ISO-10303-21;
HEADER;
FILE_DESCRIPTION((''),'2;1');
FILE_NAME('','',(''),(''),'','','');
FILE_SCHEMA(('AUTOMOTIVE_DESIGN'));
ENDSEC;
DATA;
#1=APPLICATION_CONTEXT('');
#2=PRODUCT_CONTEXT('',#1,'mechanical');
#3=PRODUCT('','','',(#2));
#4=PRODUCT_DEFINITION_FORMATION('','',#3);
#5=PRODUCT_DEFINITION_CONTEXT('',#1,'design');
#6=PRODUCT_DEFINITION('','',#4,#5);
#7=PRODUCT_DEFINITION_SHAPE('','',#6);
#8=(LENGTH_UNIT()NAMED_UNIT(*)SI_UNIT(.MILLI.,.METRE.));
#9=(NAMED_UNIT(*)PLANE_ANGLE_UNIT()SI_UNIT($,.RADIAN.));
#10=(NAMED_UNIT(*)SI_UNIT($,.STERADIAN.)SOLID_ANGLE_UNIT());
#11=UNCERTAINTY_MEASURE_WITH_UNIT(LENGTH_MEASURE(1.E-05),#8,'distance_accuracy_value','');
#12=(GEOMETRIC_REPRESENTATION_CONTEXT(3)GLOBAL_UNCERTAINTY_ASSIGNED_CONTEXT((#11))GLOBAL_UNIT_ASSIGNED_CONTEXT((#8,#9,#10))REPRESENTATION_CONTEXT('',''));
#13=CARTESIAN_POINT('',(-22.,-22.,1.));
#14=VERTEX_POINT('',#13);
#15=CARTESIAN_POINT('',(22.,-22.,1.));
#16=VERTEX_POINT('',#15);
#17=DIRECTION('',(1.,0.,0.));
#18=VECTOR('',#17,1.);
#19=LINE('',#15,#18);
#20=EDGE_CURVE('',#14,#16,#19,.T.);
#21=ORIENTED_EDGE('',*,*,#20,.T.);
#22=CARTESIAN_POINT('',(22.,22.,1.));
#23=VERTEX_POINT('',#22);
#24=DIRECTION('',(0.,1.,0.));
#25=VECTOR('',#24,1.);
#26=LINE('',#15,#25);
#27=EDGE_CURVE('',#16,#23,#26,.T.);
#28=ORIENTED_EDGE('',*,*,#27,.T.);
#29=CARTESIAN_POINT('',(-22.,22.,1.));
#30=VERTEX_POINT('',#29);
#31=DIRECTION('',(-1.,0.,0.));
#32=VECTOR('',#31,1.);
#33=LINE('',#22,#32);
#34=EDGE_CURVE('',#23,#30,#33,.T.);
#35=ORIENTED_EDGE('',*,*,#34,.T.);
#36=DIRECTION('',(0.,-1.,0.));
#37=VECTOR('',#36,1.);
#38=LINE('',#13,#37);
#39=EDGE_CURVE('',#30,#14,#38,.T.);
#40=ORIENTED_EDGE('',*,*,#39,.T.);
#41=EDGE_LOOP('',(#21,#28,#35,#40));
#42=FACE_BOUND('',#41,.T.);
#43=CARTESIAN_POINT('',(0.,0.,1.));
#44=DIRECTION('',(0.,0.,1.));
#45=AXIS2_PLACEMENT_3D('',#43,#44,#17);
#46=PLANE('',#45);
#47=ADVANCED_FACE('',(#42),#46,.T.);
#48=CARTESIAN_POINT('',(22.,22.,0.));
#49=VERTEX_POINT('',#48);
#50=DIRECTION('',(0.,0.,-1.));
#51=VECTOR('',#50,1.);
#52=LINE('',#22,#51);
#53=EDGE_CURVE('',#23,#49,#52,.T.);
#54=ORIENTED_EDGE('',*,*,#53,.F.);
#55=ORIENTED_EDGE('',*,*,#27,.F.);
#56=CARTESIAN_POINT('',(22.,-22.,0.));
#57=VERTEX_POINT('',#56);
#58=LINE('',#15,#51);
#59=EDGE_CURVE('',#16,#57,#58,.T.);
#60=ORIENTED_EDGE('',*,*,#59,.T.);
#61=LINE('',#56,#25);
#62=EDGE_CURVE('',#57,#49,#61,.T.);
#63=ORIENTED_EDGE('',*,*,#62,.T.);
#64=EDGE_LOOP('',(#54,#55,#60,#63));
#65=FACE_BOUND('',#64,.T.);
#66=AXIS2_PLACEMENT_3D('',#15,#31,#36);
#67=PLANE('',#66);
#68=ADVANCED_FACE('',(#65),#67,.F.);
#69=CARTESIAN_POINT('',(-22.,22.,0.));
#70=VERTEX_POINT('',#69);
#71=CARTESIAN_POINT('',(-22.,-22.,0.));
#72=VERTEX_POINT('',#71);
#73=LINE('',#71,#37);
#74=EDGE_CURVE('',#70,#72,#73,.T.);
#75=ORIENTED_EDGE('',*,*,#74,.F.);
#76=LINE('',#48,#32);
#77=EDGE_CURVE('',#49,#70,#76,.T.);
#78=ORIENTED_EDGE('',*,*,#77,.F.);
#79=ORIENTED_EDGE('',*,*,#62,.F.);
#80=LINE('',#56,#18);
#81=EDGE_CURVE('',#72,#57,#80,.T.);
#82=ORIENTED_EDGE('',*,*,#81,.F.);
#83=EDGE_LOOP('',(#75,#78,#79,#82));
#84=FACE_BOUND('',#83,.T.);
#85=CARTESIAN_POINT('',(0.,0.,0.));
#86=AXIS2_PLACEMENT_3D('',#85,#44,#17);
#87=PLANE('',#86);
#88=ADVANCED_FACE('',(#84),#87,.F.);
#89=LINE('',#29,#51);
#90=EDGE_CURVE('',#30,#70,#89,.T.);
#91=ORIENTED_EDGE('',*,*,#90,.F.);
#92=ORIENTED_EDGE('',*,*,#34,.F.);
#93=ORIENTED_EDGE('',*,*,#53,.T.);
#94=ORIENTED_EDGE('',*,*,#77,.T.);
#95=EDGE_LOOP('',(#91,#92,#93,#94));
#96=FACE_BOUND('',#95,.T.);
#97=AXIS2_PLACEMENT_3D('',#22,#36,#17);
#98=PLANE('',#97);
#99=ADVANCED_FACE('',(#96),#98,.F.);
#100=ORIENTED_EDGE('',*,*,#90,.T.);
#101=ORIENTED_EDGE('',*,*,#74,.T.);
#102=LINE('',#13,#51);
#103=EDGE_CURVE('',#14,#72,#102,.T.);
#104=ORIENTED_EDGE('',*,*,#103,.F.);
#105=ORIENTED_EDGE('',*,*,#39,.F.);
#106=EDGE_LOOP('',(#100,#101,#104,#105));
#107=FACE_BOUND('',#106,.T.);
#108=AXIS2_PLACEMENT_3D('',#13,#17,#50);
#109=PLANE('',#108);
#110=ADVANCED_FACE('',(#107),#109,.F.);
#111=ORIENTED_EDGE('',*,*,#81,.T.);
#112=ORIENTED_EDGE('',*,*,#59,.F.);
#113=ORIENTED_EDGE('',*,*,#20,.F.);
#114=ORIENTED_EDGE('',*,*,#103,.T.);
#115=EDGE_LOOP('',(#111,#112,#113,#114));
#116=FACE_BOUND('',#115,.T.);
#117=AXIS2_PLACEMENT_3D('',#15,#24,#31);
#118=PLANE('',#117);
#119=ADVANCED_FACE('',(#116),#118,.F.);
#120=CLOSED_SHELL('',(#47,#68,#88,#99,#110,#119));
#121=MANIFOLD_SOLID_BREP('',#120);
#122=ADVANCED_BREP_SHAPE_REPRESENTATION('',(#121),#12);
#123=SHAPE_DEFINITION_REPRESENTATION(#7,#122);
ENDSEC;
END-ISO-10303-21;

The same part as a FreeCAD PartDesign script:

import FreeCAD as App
import Part
import Sketcher
Q = App.Units.Quantity


def add_polygon(sketch, points):
    """Adds a closed chain of lines whose ends are joined by coincident constraints."""
    first, n = sketch.GeometryCount, len(points)
    for a, b in zip(points, points[1:] + points[:1]):
        sketch.addGeometry(Part.LineSegment(App.Vector(*a, 0), App.Vector(*b, 0)), False)
    for i in range(n):
        sketch.addConstraint(Sketcher.Constraint("Coincident", first + i, 2, first + (i + 1) % n, 1))

doc = App.newDocument("Part")
body = doc.addObject("PartDesign::Body", "Body")

# Sketch on XY plane
sketch1 = body.newObject("Sketcher::SketchObject", "Sketch")
sketch1.AttachmentSupport = (doc.getObject("XY_Plane"), [""])
sketch1.MapMode = "FlatFace"
add_polygon(sketch1, [(-22, 22), (-22, -22), (22, -22), (22, 22)])  # lines 0-3
sketch1.addConstraint(Sketcher.Constraint("Vertical", 0))
sketch1.addConstraint(Sketcher.Constraint("Horizontal", 1))
sketch1.addConstraint(Sketcher.Constraint("Vertical", 2))
sketch1.addConstraint(Sketcher.Constraint("Horizontal", 3))
sketch1.addConstraint(Sketcher.Constraint("Symmetric", 0, 2, 2, 2, -1, 1))
sketch1.addConstraint(Sketcher.Constraint("Equal", 3, 0))
sketch1.addConstraint(Sketcher.Constraint("DistanceX", 1, 1, 1, 2, Q("44 mm")))
pad1 = body.newObject("PartDesign::Pad", "Pad")
pad1.Profile = sketch1
pad1.Length = 1

doc.recompute()
